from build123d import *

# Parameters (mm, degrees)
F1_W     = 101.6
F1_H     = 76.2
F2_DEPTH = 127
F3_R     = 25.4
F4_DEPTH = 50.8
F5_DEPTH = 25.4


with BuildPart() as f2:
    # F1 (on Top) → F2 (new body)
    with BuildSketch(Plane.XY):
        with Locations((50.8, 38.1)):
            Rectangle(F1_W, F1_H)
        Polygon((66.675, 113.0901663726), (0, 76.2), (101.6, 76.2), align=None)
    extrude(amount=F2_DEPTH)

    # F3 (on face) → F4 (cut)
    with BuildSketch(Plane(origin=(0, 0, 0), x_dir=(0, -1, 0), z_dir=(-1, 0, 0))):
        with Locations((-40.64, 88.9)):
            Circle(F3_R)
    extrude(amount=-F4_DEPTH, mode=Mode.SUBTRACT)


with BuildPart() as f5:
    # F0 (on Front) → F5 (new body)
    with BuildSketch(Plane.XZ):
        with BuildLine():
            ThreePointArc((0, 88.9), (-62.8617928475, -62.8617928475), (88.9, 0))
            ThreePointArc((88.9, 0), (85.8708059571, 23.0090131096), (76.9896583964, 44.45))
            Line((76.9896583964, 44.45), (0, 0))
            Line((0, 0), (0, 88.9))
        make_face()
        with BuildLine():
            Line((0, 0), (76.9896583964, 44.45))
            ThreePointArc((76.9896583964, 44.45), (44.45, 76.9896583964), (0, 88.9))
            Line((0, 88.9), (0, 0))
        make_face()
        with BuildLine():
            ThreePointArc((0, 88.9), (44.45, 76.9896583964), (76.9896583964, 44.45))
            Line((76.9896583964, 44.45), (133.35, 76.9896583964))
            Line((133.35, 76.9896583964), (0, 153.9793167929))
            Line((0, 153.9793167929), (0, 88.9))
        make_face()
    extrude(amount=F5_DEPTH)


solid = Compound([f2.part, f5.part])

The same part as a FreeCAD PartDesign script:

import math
import FreeCAD as App
import Part
import Sketcher
from FreeCAD import Vector
Q = App.Units.Quantity


def add_polygon(sketch, points):
    """Adds a closed chain of lines whose ends are joined by coincident constraints."""
    first, n = sketch.GeometryCount, len(points)
    for a, b in zip(points, points[1:] + points[:1]):
        sketch.addGeometry(Part.LineSegment(App.Vector(*a, 0), App.Vector(*b, 0)), False)
    for i in range(n):
        sketch.addConstraint(Sketcher.Constraint("Coincident", first + i, 2, first + (i + 1) % n, 1))

doc = App.newDocument("Part")
body = doc.addObject("PartDesign::Body", "Body")

# Sketch on XY plane
sketch1 = body.newObject("Sketcher::SketchObject", "Sketch")
sketch1.AttachmentSupport = (doc.getObject("XY_Plane"), [""])
sketch1.MapMode = "FlatFace"
add_polygon(sketch1, [(0, 76), (0, 0), (102, 0), (102, 76), (67, 113)])  # lines 0-4
sketch1.addConstraint([
    Sketcher.Constraint("Vertical", 0),
    Sketcher.Constraint("Horizontal", 1),
    Sketcher.Constraint("Vertical", 2),
    Sketcher.Constraint("Coincident", 0, 2, -1, 1),
    Sketcher.Constraint("Horizontal", 2, 2, 4, 2),
    Sketcher.Constraint("DistanceX", 1, 1, 1, 2, Q("4 in")),
    Sketcher.Constraint("DistanceY", 0, 2, 0, 1, Q("3 in")),
    Sketcher.Constraint("Distance", 3, Q("2 in")),
    Sketcher.Constraint("Distance", 4, Q("3 in")),
])
pad1 = body.newObject("PartDesign::Pad", "Pad")
pad1.Profile = sketch1
pad1.Length = Q("5 in")

# Sketch on YZ plane
sketch2 = body.newObject("Sketcher::SketchObject", "Sketch001")
sketch2.AttachmentSupport = (doc.getObject("YZ_Plane"), [""])
sketch2.MapMode = "FlatFace"
sketch2.addGeometry(Part.Circle(Vector(41, 89, 0), Vector(0, 0, 1), 25), False)
sketch2.addConstraint([
    Sketcher.Constraint("Diameter", 0, Q("2 in")),
    Sketcher.Constraint("DistanceX", -1, 1, 0, 3, Q("1.6 in")),
    Sketcher.Constraint("DistanceY", -1, 1, 0, 3, Q("3.5 in")),
])
pocket1 = body.newObject("PartDesign::Pocket", "Pocket")
pocket1.Profile = sketch2
pocket1.Length = Q("2 in")
pocket1.Reversed = True
body2 = doc.addObject("PartDesign::Body", "Body001")

# Sketch on XZ plane
sketch3 = body2.newObject("Sketcher::SketchObject", "Sketch002")
sketch3.AttachmentSupport = (doc.getObject("XZ_Plane001"), [""])
sketch3.MapMode = "FlatFace"
sketch3.addGeometry([
    Part.ArcOfCircle(Part.Circle(Vector(0, 0, 0), Vector(0, 0, 1), 89), math.radians(90), math.radians(390)),
    Part.LineSegment(Vector(77, 44, 0), Vector(133, 77, 0)),
    Part.LineSegment(Vector(133, 77, 0), Vector(0, 154, 0)),
    Part.LineSegment(Vector(0, 154, 0), Vector(0, 89, 0)),
], False)
sketch3.addConstraint([
    Sketcher.Constraint("Coincident", 0, 2, 1, 1),
    Sketcher.Constraint("Coincident", 1, 2, 2, 1),
    Sketcher.Constraint("Coincident", 2, 2, 3, 1),
    Sketcher.Constraint("Coincident", 3, 2, 0, 1),
    Sketcher.Constraint("Vertical", 3),
    Sketcher.Constraint("Coincident", 0, 3, -1, 1),
    Sketcher.Constraint("PointOnObject", 2, 2, -2),
    Sketcher.Constraint("Radius", 0, Q("3.5 in")),
    Sketcher.Constraint("Angle", 1, Q("30 deg")),
    Sketcher.Constraint("Angle", 2, Q("150 deg")),
    Sketcher.Constraint("DistanceY", -1, 1, 0, 2, Q("1.75 in")),
    Sketcher.Constraint("DistanceX", -1, 1, 1, 2, Q("5.25 in")),
])
pad2 = body2.newObject("PartDesign::Pad", "Pad001")
pad2.Profile = sketch3
pad2.Length = Q("1 in")

doc.recompute()
